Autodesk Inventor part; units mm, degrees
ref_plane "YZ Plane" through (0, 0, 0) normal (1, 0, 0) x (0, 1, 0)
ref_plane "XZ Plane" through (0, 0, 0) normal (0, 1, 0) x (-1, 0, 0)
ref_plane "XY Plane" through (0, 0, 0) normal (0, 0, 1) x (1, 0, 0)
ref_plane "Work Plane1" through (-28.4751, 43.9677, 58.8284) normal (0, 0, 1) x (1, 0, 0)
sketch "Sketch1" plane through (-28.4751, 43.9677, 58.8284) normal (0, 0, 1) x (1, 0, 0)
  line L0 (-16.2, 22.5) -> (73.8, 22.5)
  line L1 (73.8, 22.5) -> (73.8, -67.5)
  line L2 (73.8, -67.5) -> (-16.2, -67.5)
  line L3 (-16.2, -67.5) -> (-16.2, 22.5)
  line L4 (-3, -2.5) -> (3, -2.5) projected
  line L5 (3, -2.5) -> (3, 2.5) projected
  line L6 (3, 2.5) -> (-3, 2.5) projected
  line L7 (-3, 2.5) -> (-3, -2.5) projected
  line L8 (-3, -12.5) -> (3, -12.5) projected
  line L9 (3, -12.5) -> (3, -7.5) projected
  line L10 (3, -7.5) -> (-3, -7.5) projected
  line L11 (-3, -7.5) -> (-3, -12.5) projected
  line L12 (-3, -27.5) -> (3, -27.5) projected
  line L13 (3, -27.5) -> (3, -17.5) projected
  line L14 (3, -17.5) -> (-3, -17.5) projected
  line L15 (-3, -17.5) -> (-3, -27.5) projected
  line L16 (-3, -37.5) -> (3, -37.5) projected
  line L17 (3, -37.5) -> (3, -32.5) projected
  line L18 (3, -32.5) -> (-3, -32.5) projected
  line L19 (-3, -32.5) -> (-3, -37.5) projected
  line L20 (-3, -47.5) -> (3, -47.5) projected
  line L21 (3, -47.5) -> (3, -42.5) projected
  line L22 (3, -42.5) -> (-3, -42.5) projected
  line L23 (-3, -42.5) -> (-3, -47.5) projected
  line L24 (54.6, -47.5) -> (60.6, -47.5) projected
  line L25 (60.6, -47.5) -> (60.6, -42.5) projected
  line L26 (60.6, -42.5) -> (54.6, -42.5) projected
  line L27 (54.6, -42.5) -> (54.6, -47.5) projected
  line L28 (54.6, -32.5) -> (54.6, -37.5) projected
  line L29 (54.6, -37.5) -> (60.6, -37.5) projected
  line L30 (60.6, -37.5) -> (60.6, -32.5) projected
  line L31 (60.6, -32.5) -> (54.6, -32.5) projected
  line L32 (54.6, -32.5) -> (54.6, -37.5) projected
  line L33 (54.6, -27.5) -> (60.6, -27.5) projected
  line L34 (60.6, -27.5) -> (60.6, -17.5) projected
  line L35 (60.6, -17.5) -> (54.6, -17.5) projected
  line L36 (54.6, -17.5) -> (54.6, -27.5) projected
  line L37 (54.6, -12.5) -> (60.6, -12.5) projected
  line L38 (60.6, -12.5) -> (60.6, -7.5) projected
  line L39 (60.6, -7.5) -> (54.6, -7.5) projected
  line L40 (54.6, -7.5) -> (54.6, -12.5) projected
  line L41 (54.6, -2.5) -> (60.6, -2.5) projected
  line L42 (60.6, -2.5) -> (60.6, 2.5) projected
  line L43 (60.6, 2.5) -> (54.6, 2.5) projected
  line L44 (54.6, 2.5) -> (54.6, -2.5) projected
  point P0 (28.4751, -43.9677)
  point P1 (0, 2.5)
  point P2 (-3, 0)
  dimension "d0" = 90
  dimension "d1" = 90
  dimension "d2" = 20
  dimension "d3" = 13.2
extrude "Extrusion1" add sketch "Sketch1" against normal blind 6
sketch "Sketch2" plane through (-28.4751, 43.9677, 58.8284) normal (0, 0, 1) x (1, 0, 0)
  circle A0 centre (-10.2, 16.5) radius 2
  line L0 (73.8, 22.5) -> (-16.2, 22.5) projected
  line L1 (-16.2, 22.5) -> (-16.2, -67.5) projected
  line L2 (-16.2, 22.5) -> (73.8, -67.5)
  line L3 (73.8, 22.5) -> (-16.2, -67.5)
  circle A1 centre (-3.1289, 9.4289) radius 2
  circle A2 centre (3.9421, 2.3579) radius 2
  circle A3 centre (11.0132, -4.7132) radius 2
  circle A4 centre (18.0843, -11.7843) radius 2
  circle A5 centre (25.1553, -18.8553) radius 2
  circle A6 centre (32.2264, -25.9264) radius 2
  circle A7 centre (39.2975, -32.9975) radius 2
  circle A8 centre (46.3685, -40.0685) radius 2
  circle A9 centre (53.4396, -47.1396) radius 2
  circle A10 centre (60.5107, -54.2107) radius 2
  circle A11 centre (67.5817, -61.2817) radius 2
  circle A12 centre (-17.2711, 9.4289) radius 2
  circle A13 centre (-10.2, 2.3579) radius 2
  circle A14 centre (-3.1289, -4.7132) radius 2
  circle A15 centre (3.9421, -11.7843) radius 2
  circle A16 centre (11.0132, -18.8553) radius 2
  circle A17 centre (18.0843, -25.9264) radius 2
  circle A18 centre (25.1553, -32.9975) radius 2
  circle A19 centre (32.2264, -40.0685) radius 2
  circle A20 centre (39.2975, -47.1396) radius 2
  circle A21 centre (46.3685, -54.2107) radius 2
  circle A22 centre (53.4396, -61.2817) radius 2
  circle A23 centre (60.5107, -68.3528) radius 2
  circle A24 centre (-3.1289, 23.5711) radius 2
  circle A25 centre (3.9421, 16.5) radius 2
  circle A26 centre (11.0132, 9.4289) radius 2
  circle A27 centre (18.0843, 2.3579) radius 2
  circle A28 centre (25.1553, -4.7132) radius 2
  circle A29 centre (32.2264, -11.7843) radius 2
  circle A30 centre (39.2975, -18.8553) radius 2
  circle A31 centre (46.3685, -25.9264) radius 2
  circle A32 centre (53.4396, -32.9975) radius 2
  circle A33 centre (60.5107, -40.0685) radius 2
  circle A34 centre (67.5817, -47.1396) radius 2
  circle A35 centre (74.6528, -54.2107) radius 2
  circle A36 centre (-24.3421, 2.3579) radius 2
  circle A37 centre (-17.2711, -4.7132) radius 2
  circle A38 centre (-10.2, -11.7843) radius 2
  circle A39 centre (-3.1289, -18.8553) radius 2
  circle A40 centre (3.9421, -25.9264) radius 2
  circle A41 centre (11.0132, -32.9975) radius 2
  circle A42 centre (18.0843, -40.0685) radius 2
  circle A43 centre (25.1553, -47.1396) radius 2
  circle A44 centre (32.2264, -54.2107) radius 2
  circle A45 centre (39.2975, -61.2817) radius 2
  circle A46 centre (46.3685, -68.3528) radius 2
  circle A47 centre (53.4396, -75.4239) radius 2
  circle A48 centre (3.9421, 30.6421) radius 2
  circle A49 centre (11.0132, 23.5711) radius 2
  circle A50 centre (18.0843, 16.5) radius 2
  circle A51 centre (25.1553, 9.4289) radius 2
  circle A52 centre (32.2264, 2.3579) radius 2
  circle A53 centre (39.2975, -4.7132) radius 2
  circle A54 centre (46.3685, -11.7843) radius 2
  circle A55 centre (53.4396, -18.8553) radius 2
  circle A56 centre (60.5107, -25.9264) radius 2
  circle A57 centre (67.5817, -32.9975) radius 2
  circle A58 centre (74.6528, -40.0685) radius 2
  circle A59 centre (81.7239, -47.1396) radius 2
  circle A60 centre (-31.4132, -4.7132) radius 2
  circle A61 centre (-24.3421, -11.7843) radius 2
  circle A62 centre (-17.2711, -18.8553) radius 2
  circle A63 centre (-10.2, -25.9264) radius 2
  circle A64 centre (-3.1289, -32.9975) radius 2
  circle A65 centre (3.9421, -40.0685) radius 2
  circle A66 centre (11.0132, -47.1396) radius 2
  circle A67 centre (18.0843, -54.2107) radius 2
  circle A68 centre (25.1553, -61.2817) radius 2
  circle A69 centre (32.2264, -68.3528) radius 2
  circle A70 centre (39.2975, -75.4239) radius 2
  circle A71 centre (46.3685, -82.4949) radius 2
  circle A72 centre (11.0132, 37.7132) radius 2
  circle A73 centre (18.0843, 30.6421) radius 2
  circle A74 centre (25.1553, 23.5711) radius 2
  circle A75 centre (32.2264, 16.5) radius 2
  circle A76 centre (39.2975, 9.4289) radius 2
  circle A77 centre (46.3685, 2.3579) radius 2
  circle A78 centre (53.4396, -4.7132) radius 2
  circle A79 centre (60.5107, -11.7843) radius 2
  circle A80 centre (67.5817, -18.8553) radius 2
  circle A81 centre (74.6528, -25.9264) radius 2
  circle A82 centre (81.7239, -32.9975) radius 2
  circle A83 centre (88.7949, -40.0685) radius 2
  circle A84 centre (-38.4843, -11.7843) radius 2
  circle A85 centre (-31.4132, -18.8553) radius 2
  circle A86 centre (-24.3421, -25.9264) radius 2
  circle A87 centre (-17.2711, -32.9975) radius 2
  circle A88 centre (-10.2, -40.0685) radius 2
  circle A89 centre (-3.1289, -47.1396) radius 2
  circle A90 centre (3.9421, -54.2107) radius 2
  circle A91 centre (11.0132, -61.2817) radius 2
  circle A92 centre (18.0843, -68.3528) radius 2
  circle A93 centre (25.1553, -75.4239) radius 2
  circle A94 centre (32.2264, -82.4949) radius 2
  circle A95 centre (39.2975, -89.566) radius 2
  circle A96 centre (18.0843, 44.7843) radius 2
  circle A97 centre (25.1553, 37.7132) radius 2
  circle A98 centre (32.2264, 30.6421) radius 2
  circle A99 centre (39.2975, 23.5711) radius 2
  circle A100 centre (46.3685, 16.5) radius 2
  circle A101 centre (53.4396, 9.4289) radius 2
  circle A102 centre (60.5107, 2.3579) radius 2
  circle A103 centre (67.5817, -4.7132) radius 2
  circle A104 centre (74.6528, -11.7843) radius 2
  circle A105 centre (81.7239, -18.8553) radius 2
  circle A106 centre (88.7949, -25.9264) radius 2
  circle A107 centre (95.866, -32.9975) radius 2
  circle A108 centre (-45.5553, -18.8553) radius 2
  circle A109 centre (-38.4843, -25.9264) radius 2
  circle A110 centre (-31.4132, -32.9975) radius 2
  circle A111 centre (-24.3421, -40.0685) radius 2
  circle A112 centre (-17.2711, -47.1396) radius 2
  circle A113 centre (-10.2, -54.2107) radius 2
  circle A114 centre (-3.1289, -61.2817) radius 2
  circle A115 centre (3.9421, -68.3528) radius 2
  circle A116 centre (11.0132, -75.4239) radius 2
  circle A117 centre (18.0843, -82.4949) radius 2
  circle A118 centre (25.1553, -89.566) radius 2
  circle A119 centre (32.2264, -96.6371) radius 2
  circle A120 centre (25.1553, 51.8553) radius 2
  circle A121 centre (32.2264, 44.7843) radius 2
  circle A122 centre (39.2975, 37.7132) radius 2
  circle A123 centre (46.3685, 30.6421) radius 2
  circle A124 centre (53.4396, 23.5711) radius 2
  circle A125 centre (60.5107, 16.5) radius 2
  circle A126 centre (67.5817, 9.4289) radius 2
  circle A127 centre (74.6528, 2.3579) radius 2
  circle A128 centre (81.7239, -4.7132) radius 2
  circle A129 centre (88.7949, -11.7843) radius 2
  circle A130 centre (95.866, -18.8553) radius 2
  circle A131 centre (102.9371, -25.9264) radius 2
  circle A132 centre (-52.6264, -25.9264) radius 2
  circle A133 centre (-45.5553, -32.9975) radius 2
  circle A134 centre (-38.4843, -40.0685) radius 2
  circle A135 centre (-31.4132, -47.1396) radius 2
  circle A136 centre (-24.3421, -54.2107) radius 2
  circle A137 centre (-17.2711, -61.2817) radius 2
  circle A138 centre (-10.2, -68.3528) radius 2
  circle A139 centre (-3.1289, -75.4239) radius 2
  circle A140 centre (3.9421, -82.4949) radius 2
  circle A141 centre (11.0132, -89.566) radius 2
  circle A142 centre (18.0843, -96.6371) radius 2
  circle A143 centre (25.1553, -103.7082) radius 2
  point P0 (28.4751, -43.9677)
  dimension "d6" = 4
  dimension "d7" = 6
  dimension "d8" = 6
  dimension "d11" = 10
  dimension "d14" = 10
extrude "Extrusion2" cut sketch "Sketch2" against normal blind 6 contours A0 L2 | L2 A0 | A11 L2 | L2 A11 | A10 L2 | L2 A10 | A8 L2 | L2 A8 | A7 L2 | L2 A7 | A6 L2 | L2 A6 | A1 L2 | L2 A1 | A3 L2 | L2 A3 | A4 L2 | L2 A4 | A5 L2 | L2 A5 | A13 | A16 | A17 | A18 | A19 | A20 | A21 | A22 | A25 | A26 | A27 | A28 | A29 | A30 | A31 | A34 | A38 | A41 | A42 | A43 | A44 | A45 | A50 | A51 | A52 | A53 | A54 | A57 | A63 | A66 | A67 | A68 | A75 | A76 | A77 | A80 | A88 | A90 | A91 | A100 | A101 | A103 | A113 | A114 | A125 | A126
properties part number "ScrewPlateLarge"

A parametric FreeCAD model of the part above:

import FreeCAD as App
import Part
import Sketcher

V = App.Vector

doc = App.newDocument("Part")
body = doc.addObject("PartDesign::Body", "Body")

sketch1 = body.newObject("Sketcher::SketchObject", "Sketch")
sketch1.AttachmentSupport = (doc.getObject("XY_Plane"), [""])
sketch1.MapMode = "FlatFace"
sketch1.AttachmentOffset = App.Placement(V(0, 0, 58.8284), App.Rotation())
sketch1.addGeometry([
    Part.LineSegment(V(45.3249, 66.4677, 0), V(-44.6751, 66.4677, 0)),
    Part.LineSegment(V(-44.6751, 66.4677, 0), V(-44.6751, -23.5323, 0)),
    Part.LineSegment(V(-44.6751, -23.5323, 0), V(45.3249, -23.5323, 0)),
    Part.LineSegment(V(45.3249, -23.5323, 0), V(45.3249, 66.4677, 0)),
    Part.LineSegment(V(-25.4751, -3.5323, 0), V(-31.4751, -3.5323, 0)),
    Part.LineSegment(V(-31.4751, -3.5323, 0), V(-31.4751, 1.4677, 0)),
    Part.LineSegment(V(-31.4751, 1.4677, 0), V(-25.4751, 1.4677, 0)),
    Part.LineSegment(V(-25.4751, 1.4677, 0), V(-25.4751, -3.5323, 0)),
    Part.LineSegment(V(-25.4751, 6.4677, 0), V(-31.4751, 6.4677, 0)),
    Part.LineSegment(V(-31.4751, 6.4677, 0), V(-31.4751, 11.4677, 0)),
    Part.LineSegment(V(-31.4751, 11.4677, 0), V(-25.4751, 11.4677, 0)),
    Part.LineSegment(V(-25.4751, 11.4677, 0), V(-25.4751, 6.4677, 0)),
    Part.LineSegment(V(32.1249, -3.5323, 0), V(26.1249, -3.5323, 0)),
    Part.LineSegment(V(26.1249, -3.5323, 0), V(26.1249, 1.4677, 0)),
    Part.LineSegment(V(26.1249, 1.4677, 0), V(32.1249, 1.4677, 0)),
    Part.LineSegment(V(32.1249, 1.4677, 0), V(32.1249, -3.5323, 0)),
    Part.LineSegment(V(26.1249, 6.4677, 0), V(26.1249, 11.4677, 0)),
    Part.LineSegment(V(26.1249, 11.4677, 0), V(32.1249, 11.4677, 0)),
    Part.LineSegment(V(32.1249, 11.4677, 0), V(32.1249, 6.4677, 0)),
    Part.LineSegment(V(32.1249, 6.4677, 0), V(26.1249, 6.4677, 0)),
    Part.LineSegment(V(-25.4751, 16.4677, 0), V(-31.4751, 16.4677, 0)),
    Part.LineSegment(V(-31.4751, 16.4677, 0), V(-31.4751, 26.4677, 0)),
    Part.LineSegment(V(-31.4751, 26.4677, 0), V(-25.4751, 26.4677, 0)),
    Part.LineSegment(V(-25.4751, 26.4677, 0), V(-25.4751, 16.4677, 0)),
    Part.LineSegment(V(-25.4751, 31.4677, 0), V(-31.4751, 31.4677, 0)),
    Part.LineSegment(V(-31.4751, 31.4677, 0), V(-31.4751, 36.4677, 0)),
    Part.LineSegment(V(-31.4751, 36.4677, 0), V(-25.4751, 36.4677, 0)),
    Part.LineSegment(V(-25.4751, 36.4677, 0), V(-25.4751, 31.4677, 0)),
    Part.LineSegment(V(-25.4751, 41.4677, 0), V(-31.4751, 41.4677, 0)),
    Part.LineSegment(V(-31.4751, 41.4677, 0), V(-31.4751, 46.4677, 0)),
    Part.LineSegment(V(-31.4751, 46.4677, 0), V(-25.4751, 46.4677, 0)),
    Part.LineSegment(V(-25.4751, 46.4677, 0), V(-25.4751, 41.4677, 0)),
    Part.LineSegment(V(32.1249, 16.4677, 0), V(26.1249, 16.4677, 0)),
    Part.LineSegment(V(26.1249, 16.4677, 0), V(26.1249, 26.4677, 0)),
    Part.LineSegment(V(26.1249, 26.4677, 0), V(32.1249, 26.4677, 0)),
    Part.LineSegment(V(32.1249, 26.4677, 0), V(32.1249, 16.4677, 0)),
    Part.LineSegment(V(32.1249, 31.4677, 0), V(26.1249, 31.4677, 0)),
    Part.LineSegment(V(26.1249, 31.4677, 0), V(26.1249, 36.4677, 0)),
    Part.LineSegment(V(26.1249, 36.4677, 0), V(32.1249, 36.4677, 0)),
    Part.LineSegment(V(32.1249, 36.4677, 0), V(32.1249, 31.4677, 0)),
    Part.LineSegment(V(32.1249, 41.4677, 0), V(26.1249, 41.4677, 0)),
    Part.LineSegment(V(26.1249, 41.4677, 0), V(26.1249, 46.4677, 0)),
    Part.LineSegment(V(26.1249, 46.4677, 0), V(32.1249, 46.4677, 0)),
    Part.LineSegment(V(32.1249, 46.4677, 0), V(32.1249, 41.4677, 0)),
], False)
sketch1.addConstraint([
    Sketcher.Constraint("Coincident", 0, 2, 1, 1),
    Sketcher.Constraint("Coincident", 1, 2, 2, 1),
    Sketcher.Constraint("Coincident", 2, 2, 3, 1),
    Sketcher.Constraint("Coincident", 3, 2, 0, 1),
    Sketcher.Constraint("Coincident", 4, 2, 5, 1),
    Sketcher.Constraint("Coincident", 5, 2, 6, 1),
    Sketcher.Constraint("Coincident", 6, 2, 7, 1),
    Sketcher.Constraint("Coincident", 7, 2, 4, 1),
    Sketcher.Constraint("Coincident", 8, 2, 9, 1),
    Sketcher.Constraint("Coincident", 9, 2, 10, 1),
    Sketcher.Constraint("Coincident", 10, 2, 11, 1),
    Sketcher.Constraint("Coincident", 11, 2, 8, 1),
    Sketcher.Constraint("Coincident", 12, 2, 13, 1),
    Sketcher.Constraint("Coincident", 13, 2, 14, 1),
    Sketcher.Constraint("Coincident", 14, 2, 15, 1),
    Sketcher.Constraint("Coincident", 15, 2, 12, 1),
    Sketcher.Constraint("Coincident", 16, 2, 17, 1),
    Sketcher.Constraint("Coincident", 17, 2, 18, 1),
    Sketcher.Constraint("Coincident", 18, 2, 19, 1),
    Sketcher.Constraint("Coincident", 19, 2, 16, 1),
    Sketcher.Constraint("Coincident", 20, 2, 21, 1),
    Sketcher.Constraint("Coincident", 21, 2, 22, 1),
    Sketcher.Constraint("Coincident", 22, 2, 23, 1),
    Sketcher.Constraint("Coincident", 23, 2, 20, 1),
    Sketcher.Constraint("Coincident", 24, 2, 25, 1),
    Sketcher.Constraint("Coincident", 25, 2, 26, 1),
    Sketcher.Constraint("Coincident", 26, 2, 27, 1),
    Sketcher.Constraint("Coincident", 27, 2, 24, 1),
    Sketcher.Constraint("Coincident", 28, 2, 29, 1),
    Sketcher.Constraint("Coincident", 29, 2, 30, 1),
    Sketcher.Constraint("Coincident", 30, 2, 31, 1),
    Sketcher.Constraint("Coincident", 31, 2, 28, 1),
    Sketcher.Constraint("Coincident", 32, 2, 33, 1),
    Sketcher.Constraint("Coincident", 33, 2, 34, 1),
    Sketcher.Constraint("Coincident", 34, 2, 35, 1),
    Sketcher.Constraint("Coincident", 35, 2, 32, 1),
    Sketcher.Constraint("Coincident", 36, 2, 37, 1),
    Sketcher.Constraint("Coincident", 37, 2, 38, 1),
    Sketcher.Constraint("Coincident", 38, 2, 39, 1),
    Sketcher.Constraint("Coincident", 39, 2, 36, 1),
    Sketcher.Constraint("Coincident", 40, 2, 41, 1),
    Sketcher.Constraint("Coincident", 41, 2, 42, 1),
    Sketcher.Constraint("Coincident", 42, 2, 43, 1),
    Sketcher.Constraint("Coincident", 43, 2, 40, 1),
    Sketcher.Constraint("Horizontal", 0),
    Sketcher.Constraint("Vertical", 1),
    Sketcher.Constraint("Horizontal", 2),
    Sketcher.Constraint("Vertical", 3),
    Sketcher.Constraint("Horizontal", 4),
    Sketcher.Constraint("Vertical", 5),
    Sketcher.Constraint("Horizontal", 6),
    Sketcher.Constraint("Vertical", 7),
    Sketcher.Constraint("Horizontal", 8),
    Sketcher.Constraint("Vertical", 9),
    Sketcher.Constraint("Horizontal", 10),
    Sketcher.Constraint("Vertical", 11),
    Sketcher.Constraint("Horizontal", 12),
    Sketcher.Constraint("Vertical", 13),
    Sketcher.Constraint("Horizontal", 14),
    Sketcher.Constraint("Vertical", 15),
    Sketcher.Constraint("Vertical", 16),
    Sketcher.Constraint("Horizontal", 17),
    Sketcher.Constraint("Vertical", 18),
    Sketcher.Constraint("Horizontal", 19),
    Sketcher.Constraint("Horizontal", 20),
    Sketcher.Constraint("Vertical", 21),
    Sketcher.Constraint("Horizontal", 22),
    Sketcher.Constraint("Vertical", 23),
    Sketcher.Constraint("Horizontal", 24),
    Sketcher.Constraint("Vertical", 25),
    Sketcher.Constraint("Horizontal", 26),
    Sketcher.Constraint("Vertical", 27),
    Sketcher.Constraint("Horizontal", 28),
    Sketcher.Constraint("Vertical", 29),
    Sketcher.Constraint("Horizontal", 30),
    Sketcher.Constraint("Vertical", 31),
    Sketcher.Constraint("Horizontal", 32),
    Sketcher.Constraint("Vertical", 33),
    Sketcher.Constraint("Horizontal", 34),
    Sketcher.Constraint("Vertical", 35),
    Sketcher.Constraint("Horizontal", 36),
    Sketcher.Constraint("Vertical", 37),
    Sketcher.Constraint("Horizontal", 38),
    Sketcher.Constraint("Vertical", 39),
    Sketcher.Constraint("Horizontal", 40),
    Sketcher.Constraint("Vertical", 41),
    Sketcher.Constraint("Horizontal", 42),
    Sketcher.Constraint("Vertical", 43),
    Sketcher.Constraint("Horizontal", 7, 2, 12, 2),
    Sketcher.Constraint("Horizontal", 6, 2, 13, 2),
    Sketcher.Constraint("Horizontal", 10, 2, 16, 2),
    Sketcher.Constraint("Horizontal", 11, 2, 18, 2),
    Sketcher.Constraint("Horizontal", 23, 2, 32, 2),
    Sketcher.Constraint("Horizontal", 22, 2, 33, 2),
    Sketcher.Constraint("Horizontal", 27, 2, 36, 2),
    Sketcher.Constraint("Horizontal", 26, 2, 37, 2),
    Sketcher.Constraint("Horizontal", 31, 2, 40, 2),
    Sketcher.Constraint("Horizontal", 30, 2, 41, 2),
    Sketcher.Constraint("Vertical", 5, 2, 8, 2),
    Sketcher.Constraint("Vertical", 7, 2, 10, 2),
    Sketcher.Constraint("Vertical", 13, 2, 16, 2),
    Sketcher.Constraint("Vertical", 15, 2, 17, 2),
    Sketcher.Constraint("Vertical", 9, 2, 20, 2),
    Sketcher.Constraint("Vertical", 11, 2, 22, 2),
    Sketcher.Constraint("Vertical", 21, 2, 24, 2),
    Sketcher.Constraint("Vertical", 23, 2, 26, 2),
    Sketcher.Constraint("Vertical", 25, 2, 28, 2),
    Sketcher.Constraint("Vertical", 27, 2, 30, 2),
    Sketcher.Constraint("Vertical", 19, 2, 32, 2),
    Sketcher.Constraint("Vertical", 18, 2, 34, 2),
    Sketcher.Constraint("Vertical", 33, 2, 36, 2),
    Sketcher.Constraint("Vertical", 35, 2, 38, 2),
    Sketcher.Constraint("Vertical", 37, 2, 40, 2),
    Sketcher.Constraint("Vertical", 39, 2, 42, 2),
    Sketcher.Constraint("Equal", 10, 12),
    Sketcher.Constraint("Equal", 2, 1),
    Sketcher.Constraint("Equal", 7, 9),
    Sketcher.Constraint("Equal", 18, 25),
    Sketcher.Constraint("Equal", 27, 29),
    Sketcher.Constraint("DistanceX", 0, 2, 0, 1, 90.0),
    Sketcher.Constraint("DistanceY", 1, 2, 4, 2, 20.0),
    Sketcher.Constraint("DistanceY", 8, 2, 21, 2, 20.0),
    Sketcher.Constraint("DistanceY", 9, 2, 24, 2, 20.0),
    Sketcher.Constraint("DistanceY", 20, 2, 25, 2, 20.0),
    Sketcher.Constraint("DistanceX", 1, 2, 4, 2, 13.2),
    Sketcher.Constraint("DistanceX", 14, 2, 2, 2, 13.2),
    Sketcher.Constraint("DistanceX", 4, 2, 4, 1, 6.0),
    Sketcher.Constraint("DistanceY", 5, 1, 5, 2, 5.0),
    Sketcher.Constraint("DistanceY", 5, 2, 8, 2, 5.0),
    Sketcher.Constraint("DistanceY", 25, 2, 28, 2, 5.0),
    Sketcher.Constraint("DistanceX", 0, 2, -1, 1, 44.675),
    Sketcher.Constraint("DistanceY", -1, 1, 0, 2, 66.4677),
])
pad1 = body.newObject("PartDesign::Pad", "Pad")
pad1.Profile = sketch1
pad1.Length = 6
pad1.Reversed = True

sketch2 = body.newObject("Sketcher::SketchObject", "Sketch001")
sketch2.AttachmentSupport = (doc.getObject("XY_Plane"), [""])
sketch2.MapMode = "FlatFace"
sketch2.AttachmentOffset = App.Placement(V(0, 0, 58.8284), App.Rotation())
sketch2.addGeometry([
    Part.Circle(V(-38.6751, 60.4677, 0), V(0, 0, 1), 2),
    Part.Circle(V(39.1066, -17.314, 0), V(0, 0, 1), 2),
    Part.Circle(V(32.0356, -10.243, 0), V(0, 0, 1), 2),
    Part.Circle(V(17.8934, 3.8992, 0), V(0, 0, 1), 2),
    Part.Circle(V(10.8224, 10.9702, 0), V(0, 0, 1), 2),
    Part.Circle(V(3.7513, 18.0413, 0), V(0, 0, 1), 2),
    Part.Circle(V(-31.604, 53.3966, 0), V(0, 0, 1), 2),
    Part.Circle(V(-17.4619, 39.2545, 0), V(0, 0, 1), 2),
    Part.Circle(V(-10.3908, 32.1834, 0), V(0, 0, 1), 2),
    Part.Circle(V(-3.3198, 25.1124, 0), V(0, 0, 1), 2),
    Part.Circle(V(-38.6751, 46.3256, 0), V(0, 0, 1), 2),
    Part.Circle(V(-17.4619, 25.1124, 0), V(0, 0, 1), 2),
    Part.Circle(V(-10.3908, 18.0413, 0), V(0, 0, 1), 2),
    Part.Circle(V(-3.3198, 10.9702, 0), V(0, 0, 1), 2),
    Part.Circle(V(3.7513, 3.8992, 0), V(0, 0, 1), 2),
    Part.Circle(V(10.8224, -3.1719, 0), V(0, 0, 1), 2),
    Part.Circle(V(17.8934, -10.243, 0), V(0, 0, 1), 2),
    Part.Circle(V(24.9645, -17.314, 0), V(0, 0, 1), 2),
    Part.Circle(V(-24.533, 60.4677, 0), V(0, 0, 1), 2),
    Part.Circle(V(-17.4619, 53.3966, 0), V(0, 0, 1), 2),
    Part.Circle(V(-10.3908, 46.3256, 0), V(0, 0, 1), 2),
    Part.Circle(V(-3.3198, 39.2545, 0), V(0, 0, 1), 2),
    Part.Circle(V(3.7513, 32.1834, 0), V(0, 0, 1), 2),
    Part.Circle(V(10.8224, 25.1124, 0), V(0, 0, 1), 2),
    Part.Circle(V(17.8934, 18.0413, 0), V(0, 0, 1), 2),
    Part.Circle(V(39.1066, -3.1719, 0), V(0, 0, 1), 2),
    Part.Circle(V(-38.6751, 32.1834, 0), V(0, 0, 1), 2),
    Part.Circle(V(-17.4619, 10.9702, 0), V(0, 0, 1), 2),
    Part.Circle(V(-10.3908, 3.8992, 0), V(0, 0, 1), 2),
    Part.Circle(V(-3.3198, -3.1719, 0), V(0, 0, 1), 2),
    Part.Circle(V(3.7513, -10.243, 0), V(0, 0, 1), 2),
    Part.Circle(V(10.8224, -17.314, 0), V(0, 0, 1), 2),
    Part.Circle(V(-10.3908, 60.4677, 0), V(0, 0, 1), 2),
    Part.Circle(V(-3.3198, 53.3966, 0), V(0, 0, 1), 2),
    Part.Circle(V(3.7513, 46.3256, 0), V(0, 0, 1), 2),
    Part.Circle(V(10.8224, 39.2545, 0), V(0, 0, 1), 2),
    Part.Circle(V(17.8934, 32.1834, 0), V(0, 0, 1), 2),
    Part.Circle(V(39.1066, 10.9702, 0), V(0, 0, 1), 2),
    Part.Circle(V(-38.6751, 18.0413, 0), V(0, 0, 1), 2),
    Part.Circle(V(-17.4619, -3.1719, 0), V(0, 0, 1), 2),
    Part.Circle(V(-10.3908, -10.243, 0), V(0, 0, 1), 2),
    Part.Circle(V(-3.3198, -17.314, 0), V(0, 0, 1), 2),
    Part.Circle(V(3.7513, 60.4677, 0), V(0, 0, 1), 2),
    Part.Circle(V(10.8224, 53.3966, 0), V(0, 0, 1), 2),
    Part.Circle(V(17.8934, 46.3256, 0), V(0, 0, 1), 2),
    Part.Circle(V(39.1066, 25.1124, 0), V(0, 0, 1), 2),
    Part.Circle(V(-38.6751, 3.8992, 0), V(0, 0, 1), 2),
    Part.Circle(V(-24.533, -10.243, 0), V(0, 0, 1), 2),
    Part.Circle(V(-17.4619, -17.314, 0), V(0, 0, 1), 2),
    Part.Circle(V(17.8934, 60.4677, 0), V(0, 0, 1), 2),
    Part.Circle(V(24.9645, 53.3966, 0), V(0, 0, 1), 2),
    Part.Circle(V(39.1066, 39.2545, 0), V(0, 0, 1), 2),
    Part.Circle(V(-38.6751, -10.243, 0), V(0, 0, 1), 2),
    Part.Circle(V(-31.604, -17.314, 0), V(0, 0, 1), 2),
    Part.Circle(V(32.0356, 60.4677, 0), V(0, 0, 1), 2),
    Part.Circle(V(39.1066, 53.3966, 0), V(0, 0, 1), 2),
], False)
sketch2.addConstraint([
    Sketcher.Constraint("Equal", 0, 1),
    Sketcher.Constraint("Equal", 1, 2),
    Sketcher.Constraint("Equal", 2, 3),
    Sketcher.Constraint("Equal", 3, 4),
    Sketcher.Constraint("Equal", 4, 5),
    Sketcher.Constraint("Equal", 5, 6),
    Sketcher.Constraint("Equal", 6, 7),
    Sketcher.Constraint("Equal", 7, 8),
    Sketcher.Constraint("Equal", 8, 9),
    Sketcher.Constraint("Equal", 9, 10),
    Sketcher.Constraint("Equal", 10, 11),
    Sketcher.Constraint("Equal", 11, 12),
    Sketcher.Constraint("Equal", 12, 13),
    Sketcher.Constraint("Equal", 13, 14),
    Sketcher.Constraint("Equal", 14, 15),
    Sketcher.Constraint("Equal", 15, 16),
    Sketcher.Constraint("Equal", 16, 17),
    Sketcher.Constraint("Equal", 17, 18),
    Sketcher.Constraint("Equal", 18, 19),
    Sketcher.Constraint("Equal", 19, 20),
    Sketcher.Constraint("Equal", 20, 21),
    Sketcher.Constraint("Equal", 21, 22),
    Sketcher.Constraint("Equal", 22, 23),
    Sketcher.Constraint("Equal", 23, 24),
    Sketcher.Constraint("Equal", 24, 25),
    Sketcher.Constraint("Equal", 25, 26),
    Sketcher.Constraint("Equal", 26, 27),
    Sketcher.Constraint("Equal", 27, 28),
    Sketcher.Constraint("Equal", 28, 29),
    Sketcher.Constraint("Equal", 29, 30),
    Sketcher.Constraint("Equal", 30, 31),
    Sketcher.Constraint("Equal", 31, 32),
    Sketcher.Constraint("Equal", 32, 33),
    Sketcher.Constraint("Equal", 33, 34),
    Sketcher.Constraint("Equal", 34, 35),
    Sketcher.Constraint("Equal", 35, 36),
    Sketcher.Constraint("Equal", 36, 37),
    Sketcher.Constraint("Equal", 37, 38),
    Sketcher.Constraint("Equal", 38, 39),
    Sketcher.Constraint("Equal", 39, 40),
    Sketcher.Constraint("Equal", 40, 41),
    Sketcher.Constraint("Equal", 41, 42),
    Sketcher.Constraint("Equal", 42, 43),
    Sketcher.Constraint("Equal", 43, 44),
    Sketcher.Constraint("Equal", 44, 45),
    Sketcher.Constraint("Equal", 45, 46),
    Sketcher.Constraint("Equal", 46, 47),
    Sketcher.Constraint("Equal", 47, 48),
    Sketcher.Constraint("Equal", 48, 49),
    Sketcher.Constraint("Equal", 49, 50),
    Sketcher.Constraint("Equal", 50, 51),
    Sketcher.Constraint("Equal", 51, 52),
    Sketcher.Constraint("Equal", 52, 53),
    Sketcher.Constraint("Equal", 53, 54),
    Sketcher.Constraint("Equal", 54, 55),
    Sketcher.Constraint("Horizontal", 9, 3, 11, 3),
    Sketcher.Constraint("Horizontal", 5, 3, 12, 3),
    Sketcher.Constraint("Horizontal", 4, 3, 13, 3),
    Sketcher.Constraint("Horizontal", 3, 3, 14, 3),
    Sketcher.Constraint("Horizontal", 2, 3, 16, 3),
    Sketcher.Constraint("Horizontal", 1, 3, 17, 3),
    Sketcher.Constraint("Horizontal", 0, 3, 18, 3),
    Sketcher.Constraint("Horizontal", 6, 3, 19, 3),
    Sketcher.Constraint("Horizontal", 10, 3, 20, 3),
    Sketcher.Constraint("Horizontal", 7, 3, 21, 3),
    Sketcher.Constraint("Horizontal", 8, 3, 22, 3),
    Sketcher.Constraint("Horizontal", 11, 3, 23, 3),
    Sketcher.Constraint("Horizontal", 12, 3, 24, 3),
    Sketcher.Constraint("Horizontal", 15, 3, 25, 3),
    Sketcher.Constraint("Horizontal", 22, 3, 26, 3),
    Sketcher.Constraint("Horizontal", 13, 3, 27, 3),
    Sketcher.Constraint("Horizontal", 14, 3, 28, 3),
    Sketcher.Constraint("Horizontal", 25, 3, 29, 3),
    Sketcher.Constraint("Horizontal", 16, 3, 30, 3),
    Sketcher.Constraint("Horizontal", 17, 3, 31, 3),
    Sketcher.Constraint("Horizontal", 18, 3, 32, 3),
    Sketcher.Constraint("Horizontal", 19, 3, 33, 3),
    Sketcher.Constraint("Horizontal", 20, 3, 34, 3),
    Sketcher.Constraint("Horizontal", 21, 3, 35, 3),
    Sketcher.Constraint("Horizontal", 26, 3, 36, 3),
    Sketcher.Constraint("Horizontal", 27, 3, 37, 3),
    Sketcher.Constraint("Horizontal", 24, 3, 38, 3),
    Sketcher.Constraint("Horizontal", 29, 3, 39, 3),
    Sketcher.Constraint("Horizontal", 30, 3, 40, 3),
    Sketcher.Constraint("Horizontal", 31, 3, 41, 3),
    Sketcher.Constraint("Horizontal", 32, 3, 42, 3),
    Sketcher.Constraint("Horizontal", 33, 3, 43, 3),
    Sketcher.Constraint("Horizontal", 34, 3, 44, 3),
    Sketcher.Constraint("Horizontal", 23, 3, 45, 3),
    Sketcher.Constraint("Horizontal", 28, 3, 46, 3),
    Sketcher.Constraint("Horizontal", 40, 3, 47, 3),
    Sketcher.Constraint("Horizontal", 41, 3, 48, 3),
    Sketcher.Constraint("Horizontal", 42, 3, 49, 3),
    Sketcher.Constraint("Horizontal", 43, 3, 50, 3),
    Sketcher.Constraint("Horizontal", 35, 3, 51, 3),
    Sketcher.Constraint("Horizontal", 47, 3, 52, 3),
    Sketcher.Constraint("Horizontal", 48, 3, 53, 3),
    Sketcher.Constraint("Horizontal", 49, 3, 54, 3),
    Sketcher.Constraint("Horizontal", 50, 3, 55, 3),
    Sketcher.Constraint("Vertical", 0, 3, 10, 3),
    Sketcher.Constraint("Vertical", 7, 3, 11, 3),
    Sketcher.Constraint("Vertical", 8, 3, 12, 3),
    Sketcher.Constraint("Vertical", 9, 3, 13, 3),
    Sketcher.Constraint("Vertical", 5, 3, 14, 3),
    Sketcher.Constraint("Vertical", 4, 3, 15, 3),
    Sketcher.Constraint("Vertical", 3, 3, 16, 3),
    Sketcher.Constraint("Vertical", 11, 3, 19, 3),
    Sketcher.Constraint("Vertical", 12, 3, 20, 3),
    Sketcher.Constraint("Vertical", 13, 3, 21, 3),
    Sketcher.Constraint("Vertical", 14, 3, 22, 3),
    Sketcher.Constraint("Vertical", 15, 3, 23, 3),
    Sketcher.Constraint("Vertical", 16, 3, 24, 3),
    Sketcher.Constraint("Vertical", 1, 3, 25, 3),
    Sketcher.Constraint("Vertical", 10, 3, 26, 3),
    Sketcher.Constraint("Vertical", 19, 3, 27, 3),
    Sketcher.Constraint("Vertical", 20, 3, 28, 3),
    Sketcher.Constraint("Vertical", 21, 3, 29, 3),
    Sketcher.Constraint("Vertical", 22, 3, 30, 3),
    Sketcher.Constraint("Vertical", 23, 3, 31, 3),
    Sketcher.Constraint("Vertical", 28, 3, 32, 3),
    Sketcher.Constraint("Vertical", 29, 3, 33, 3),
    Sketcher.Constraint("Vertical", 30, 3, 34, 3),
    Sketcher.Constraint("Vertical", 31, 3, 35, 3),
    Sketcher.Constraint("Vertical", 24, 3, 36, 3),
    Sketcher.Constraint("Vertical", 25, 3, 37, 3),
    Sketcher.Constraint("Vertical", 26, 3, 38, 3),
    Sketcher.Constraint("Vertical", 27, 3, 39, 3),
    Sketcher.Constraint("Vertical", 32, 3, 40, 3),
    Sketcher.Constraint("Vertical", 33, 3, 41, 3),
    Sketcher.Constraint("Vertical", 34, 3, 42, 3),
    Sketcher.Constraint("Vertical", 35, 3, 43, 3),
    Sketcher.Constraint("Vertical", 36, 3, 44, 3),
    Sketcher.Constraint("Vertical", 37, 3, 45, 3),
    Sketcher.Constraint("Vertical", 38, 3, 46, 3),
    Sketcher.Constraint("Vertical", 18, 3, 47, 3),
    Sketcher.Constraint("Vertical", 39, 3, 48, 3),
    Sketcher.Constraint("Vertical", 44, 3, 49, 3),
    Sketcher.Constraint("Vertical", 17, 3, 50, 3),
    Sketcher.Constraint("Vertical", 45, 3, 51, 3),
    Sketcher.Constraint("Vertical", 46, 3, 52, 3),
    Sketcher.Constraint("Vertical", 6, 3, 53, 3),
    Sketcher.Constraint("Vertical", 2, 3, 54, 3),
    Sketcher.Constraint("Vertical", 51, 3, 55, 3),
    Sketcher.Constraint("Diameter", 0, 4.0),
    Sketcher.Constraint("DistanceX", 0, 3, -1, 1, 38.675),
    Sketcher.Constraint("DistanceY", 1, 3, -1, 1, 17.314),
    Sketcher.Constraint("DistanceY", 2, 3, -1, 1, 10.243),
    Sketcher.Constraint("DistanceX", 6, 3, -1, 1, 31.604),
    Sketcher.Constraint("DistanceX", 7, 3, -1, 1, 17.462),
    Sketcher.Constraint("DistanceY", 15, 3, -1, 1, 3.172),
    Sketcher.Constraint("DistanceX", 18, 3, -1, 1, 24.533),
    Sketcher.Constraint("DistanceX", 2, 3, 1, 3, 7.071),
    Sketcher.Constraint("DistanceX", 4, 3, 3, 3, 7.071),
    Sketcher.Constraint("DistanceY", 3, 3, 4, 3, 7.071),
    Sketcher.Constraint("DistanceX", 5, 3, 4, 3, 7.071),
    Sketcher.Constraint("DistanceY", 4, 3, 5, 3, 7.071),
    Sketcher.Constraint("DistanceY", 6, 3, 0, 3, 7.071),
    Sketcher.Constraint("DistanceY", 7, 3, 6, 3, 14.142),
    Sketcher.Constraint("DistanceX", 7, 3, 8, 3, 7.071),
    Sketcher.Constraint("DistanceY", 8, 3, 7, 3, 7.071),
    Sketcher.Constraint("DistanceX", 8, 3, 5, 3, 14.142),
    Sketcher.Constraint("DistanceY", 5, 3, 8, 3, 14.142),
    Sketcher.Constraint("DistanceX", 8, 3, 9, 3, 7.071),
    Sketcher.Constraint("DistanceY", 9, 3, 8, 3, 7.071),
    Sketcher.Constraint("DistanceY", 10, 3, 6, 3, 7.071),
    Sketcher.Constraint("DistanceY", 15, 3, 3, 3, 7.071),
    Sketcher.Constraint("DistanceX", 17, 3, 2, 3, 7.071),
    Sketcher.Constraint("DistanceX", 16, 3, 17, 3, 7.071),
])
pocket1 = body.newObject("PartDesign::Pocket", "Pocket")
pocket1.Profile = sketch2
pocket1.Length = 6

doc.recompute()
